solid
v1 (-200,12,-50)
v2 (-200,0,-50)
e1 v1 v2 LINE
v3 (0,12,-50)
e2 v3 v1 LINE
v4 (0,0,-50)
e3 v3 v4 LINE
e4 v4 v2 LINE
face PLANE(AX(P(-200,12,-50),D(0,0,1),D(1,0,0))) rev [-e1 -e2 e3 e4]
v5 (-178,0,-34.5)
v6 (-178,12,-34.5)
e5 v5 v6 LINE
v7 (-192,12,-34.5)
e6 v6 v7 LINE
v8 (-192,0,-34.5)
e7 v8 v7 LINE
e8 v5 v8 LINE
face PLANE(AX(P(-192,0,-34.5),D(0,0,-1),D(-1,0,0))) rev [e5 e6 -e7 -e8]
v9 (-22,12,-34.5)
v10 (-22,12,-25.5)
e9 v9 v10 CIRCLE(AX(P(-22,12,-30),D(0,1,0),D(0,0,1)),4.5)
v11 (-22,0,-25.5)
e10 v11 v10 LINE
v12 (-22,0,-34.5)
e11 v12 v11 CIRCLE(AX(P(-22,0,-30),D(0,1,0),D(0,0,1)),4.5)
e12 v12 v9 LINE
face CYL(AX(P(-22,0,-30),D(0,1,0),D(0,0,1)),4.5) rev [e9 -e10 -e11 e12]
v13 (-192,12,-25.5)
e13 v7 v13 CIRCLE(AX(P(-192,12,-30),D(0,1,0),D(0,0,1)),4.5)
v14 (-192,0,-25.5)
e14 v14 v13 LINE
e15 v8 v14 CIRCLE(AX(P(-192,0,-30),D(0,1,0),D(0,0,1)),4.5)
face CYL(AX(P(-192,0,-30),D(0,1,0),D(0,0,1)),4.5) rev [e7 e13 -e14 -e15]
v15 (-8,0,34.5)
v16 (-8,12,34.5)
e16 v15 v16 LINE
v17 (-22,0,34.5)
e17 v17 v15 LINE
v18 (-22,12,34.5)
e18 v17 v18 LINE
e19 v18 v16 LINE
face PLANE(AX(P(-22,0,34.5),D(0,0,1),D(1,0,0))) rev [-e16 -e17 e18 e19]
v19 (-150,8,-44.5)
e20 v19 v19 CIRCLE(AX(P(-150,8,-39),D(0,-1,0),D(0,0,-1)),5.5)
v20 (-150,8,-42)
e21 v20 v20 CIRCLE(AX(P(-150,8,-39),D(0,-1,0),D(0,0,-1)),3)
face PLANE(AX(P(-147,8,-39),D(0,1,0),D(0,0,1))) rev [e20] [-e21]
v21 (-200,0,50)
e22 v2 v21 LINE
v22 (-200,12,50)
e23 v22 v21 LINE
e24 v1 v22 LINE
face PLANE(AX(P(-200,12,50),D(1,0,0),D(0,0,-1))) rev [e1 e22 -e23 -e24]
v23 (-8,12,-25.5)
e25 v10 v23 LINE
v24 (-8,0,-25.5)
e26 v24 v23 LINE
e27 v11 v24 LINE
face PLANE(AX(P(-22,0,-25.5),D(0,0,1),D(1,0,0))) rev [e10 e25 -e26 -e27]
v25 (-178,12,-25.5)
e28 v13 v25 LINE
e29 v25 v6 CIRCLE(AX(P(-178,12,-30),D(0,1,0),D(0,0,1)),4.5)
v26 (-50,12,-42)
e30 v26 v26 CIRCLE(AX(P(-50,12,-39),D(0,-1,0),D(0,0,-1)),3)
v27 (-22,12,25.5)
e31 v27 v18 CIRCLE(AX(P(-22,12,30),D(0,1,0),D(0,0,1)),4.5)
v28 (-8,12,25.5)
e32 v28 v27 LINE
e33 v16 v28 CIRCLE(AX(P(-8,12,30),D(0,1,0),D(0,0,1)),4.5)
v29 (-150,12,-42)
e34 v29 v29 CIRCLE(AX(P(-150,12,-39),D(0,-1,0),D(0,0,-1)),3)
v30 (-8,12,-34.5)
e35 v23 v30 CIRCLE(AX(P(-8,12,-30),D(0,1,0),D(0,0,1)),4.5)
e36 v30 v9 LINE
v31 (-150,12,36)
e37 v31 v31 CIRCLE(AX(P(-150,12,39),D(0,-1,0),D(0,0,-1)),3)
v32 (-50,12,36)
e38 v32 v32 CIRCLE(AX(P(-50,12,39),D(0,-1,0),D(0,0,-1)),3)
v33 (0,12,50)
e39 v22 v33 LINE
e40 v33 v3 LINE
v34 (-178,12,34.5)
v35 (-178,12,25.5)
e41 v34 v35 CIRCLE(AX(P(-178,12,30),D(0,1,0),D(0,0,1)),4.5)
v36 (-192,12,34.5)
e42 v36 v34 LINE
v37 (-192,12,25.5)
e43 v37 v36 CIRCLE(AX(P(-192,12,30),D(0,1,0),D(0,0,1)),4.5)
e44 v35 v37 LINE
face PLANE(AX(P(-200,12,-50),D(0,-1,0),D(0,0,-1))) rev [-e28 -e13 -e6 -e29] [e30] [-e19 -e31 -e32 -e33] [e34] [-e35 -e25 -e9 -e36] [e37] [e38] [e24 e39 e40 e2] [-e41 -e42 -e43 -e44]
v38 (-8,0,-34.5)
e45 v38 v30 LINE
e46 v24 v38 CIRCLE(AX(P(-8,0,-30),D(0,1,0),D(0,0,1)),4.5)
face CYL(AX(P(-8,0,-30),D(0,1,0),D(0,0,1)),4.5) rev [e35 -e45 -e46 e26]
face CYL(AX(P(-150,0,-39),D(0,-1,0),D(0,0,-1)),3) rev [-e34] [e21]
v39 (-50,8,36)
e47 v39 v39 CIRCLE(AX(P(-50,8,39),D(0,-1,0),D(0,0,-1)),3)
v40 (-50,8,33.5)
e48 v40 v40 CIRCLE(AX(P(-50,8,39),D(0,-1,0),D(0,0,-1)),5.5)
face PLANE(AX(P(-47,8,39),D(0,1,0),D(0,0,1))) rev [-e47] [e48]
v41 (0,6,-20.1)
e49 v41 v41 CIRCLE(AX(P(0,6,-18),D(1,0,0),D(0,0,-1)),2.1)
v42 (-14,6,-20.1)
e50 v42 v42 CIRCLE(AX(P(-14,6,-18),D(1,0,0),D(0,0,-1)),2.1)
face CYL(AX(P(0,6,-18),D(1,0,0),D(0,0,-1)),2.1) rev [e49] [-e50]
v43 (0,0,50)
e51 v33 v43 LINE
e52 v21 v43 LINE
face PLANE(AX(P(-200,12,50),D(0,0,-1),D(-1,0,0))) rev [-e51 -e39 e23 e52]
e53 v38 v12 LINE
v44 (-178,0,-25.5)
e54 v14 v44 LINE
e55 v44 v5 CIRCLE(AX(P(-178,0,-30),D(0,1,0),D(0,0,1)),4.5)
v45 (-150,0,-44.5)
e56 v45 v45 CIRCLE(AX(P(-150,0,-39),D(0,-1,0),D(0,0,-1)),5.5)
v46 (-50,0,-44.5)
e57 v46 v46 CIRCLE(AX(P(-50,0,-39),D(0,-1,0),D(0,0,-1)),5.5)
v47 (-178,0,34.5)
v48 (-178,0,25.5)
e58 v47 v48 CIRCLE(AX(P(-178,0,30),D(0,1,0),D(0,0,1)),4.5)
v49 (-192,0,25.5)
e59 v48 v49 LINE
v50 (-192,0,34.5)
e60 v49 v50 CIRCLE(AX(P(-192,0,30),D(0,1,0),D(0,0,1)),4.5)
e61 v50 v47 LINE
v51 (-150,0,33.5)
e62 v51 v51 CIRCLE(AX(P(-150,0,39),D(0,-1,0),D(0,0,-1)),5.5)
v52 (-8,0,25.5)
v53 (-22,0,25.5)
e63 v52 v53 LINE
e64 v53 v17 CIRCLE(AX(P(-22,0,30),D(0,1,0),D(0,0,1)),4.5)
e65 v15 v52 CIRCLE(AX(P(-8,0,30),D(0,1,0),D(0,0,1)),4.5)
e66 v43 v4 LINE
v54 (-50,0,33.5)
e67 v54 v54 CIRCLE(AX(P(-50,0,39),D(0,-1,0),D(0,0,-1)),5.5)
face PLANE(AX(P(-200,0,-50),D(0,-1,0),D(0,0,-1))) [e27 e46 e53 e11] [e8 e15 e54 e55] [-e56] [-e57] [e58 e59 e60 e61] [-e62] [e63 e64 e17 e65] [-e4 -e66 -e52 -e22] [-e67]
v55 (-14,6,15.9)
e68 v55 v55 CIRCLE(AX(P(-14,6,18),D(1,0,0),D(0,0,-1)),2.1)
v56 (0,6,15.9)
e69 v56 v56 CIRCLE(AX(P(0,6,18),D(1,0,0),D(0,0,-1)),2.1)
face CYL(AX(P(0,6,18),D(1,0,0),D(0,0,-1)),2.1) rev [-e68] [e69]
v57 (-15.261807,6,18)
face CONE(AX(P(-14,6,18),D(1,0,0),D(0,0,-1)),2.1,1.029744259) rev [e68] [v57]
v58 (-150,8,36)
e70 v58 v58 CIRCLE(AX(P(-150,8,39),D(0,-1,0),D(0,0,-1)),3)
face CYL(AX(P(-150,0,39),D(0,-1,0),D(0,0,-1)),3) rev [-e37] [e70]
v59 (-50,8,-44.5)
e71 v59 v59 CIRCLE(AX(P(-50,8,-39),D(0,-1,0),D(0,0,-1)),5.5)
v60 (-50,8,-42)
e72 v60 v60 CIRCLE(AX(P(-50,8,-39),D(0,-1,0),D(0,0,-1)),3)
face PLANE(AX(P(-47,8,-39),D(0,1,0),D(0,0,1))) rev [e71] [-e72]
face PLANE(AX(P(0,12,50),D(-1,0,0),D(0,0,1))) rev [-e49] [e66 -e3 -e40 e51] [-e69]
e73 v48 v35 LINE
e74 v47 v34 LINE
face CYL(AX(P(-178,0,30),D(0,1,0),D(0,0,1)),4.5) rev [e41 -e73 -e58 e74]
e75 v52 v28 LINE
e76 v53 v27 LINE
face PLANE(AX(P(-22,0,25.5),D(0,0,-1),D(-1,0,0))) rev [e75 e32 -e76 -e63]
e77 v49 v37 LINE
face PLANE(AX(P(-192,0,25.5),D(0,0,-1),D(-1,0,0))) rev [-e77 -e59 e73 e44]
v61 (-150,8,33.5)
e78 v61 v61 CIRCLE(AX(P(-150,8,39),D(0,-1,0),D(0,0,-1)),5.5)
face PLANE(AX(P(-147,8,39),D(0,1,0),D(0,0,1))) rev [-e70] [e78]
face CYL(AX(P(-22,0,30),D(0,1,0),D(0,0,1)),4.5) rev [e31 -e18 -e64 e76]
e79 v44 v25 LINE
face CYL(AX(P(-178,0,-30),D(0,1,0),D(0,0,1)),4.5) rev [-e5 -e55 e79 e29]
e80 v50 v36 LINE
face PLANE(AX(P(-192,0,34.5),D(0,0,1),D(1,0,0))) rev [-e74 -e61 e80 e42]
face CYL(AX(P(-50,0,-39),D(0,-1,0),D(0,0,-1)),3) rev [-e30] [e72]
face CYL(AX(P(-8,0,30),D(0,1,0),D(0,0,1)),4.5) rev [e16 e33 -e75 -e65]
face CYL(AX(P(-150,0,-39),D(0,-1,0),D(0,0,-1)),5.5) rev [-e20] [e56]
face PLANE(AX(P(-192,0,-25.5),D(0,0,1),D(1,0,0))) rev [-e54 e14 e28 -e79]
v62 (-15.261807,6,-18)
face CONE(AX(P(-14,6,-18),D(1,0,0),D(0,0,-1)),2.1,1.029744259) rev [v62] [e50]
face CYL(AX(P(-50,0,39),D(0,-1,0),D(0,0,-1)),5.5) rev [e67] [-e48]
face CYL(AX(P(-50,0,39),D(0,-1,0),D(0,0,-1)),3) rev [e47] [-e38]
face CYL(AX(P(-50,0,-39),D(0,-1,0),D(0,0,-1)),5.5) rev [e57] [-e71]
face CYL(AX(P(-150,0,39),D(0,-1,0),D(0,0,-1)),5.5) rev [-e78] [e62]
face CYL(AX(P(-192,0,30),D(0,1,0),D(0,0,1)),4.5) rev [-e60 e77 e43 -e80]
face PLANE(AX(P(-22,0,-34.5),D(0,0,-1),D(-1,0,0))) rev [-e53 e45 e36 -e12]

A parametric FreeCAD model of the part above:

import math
import FreeCAD as App
import Part
import Sketcher

V = App.Vector

doc = App.newDocument("Part")
body = doc.addObject("PartDesign::Body", "Body")

sketch1 = doc.addObject("Sketcher::SketchObject", "Sketch")
body.addObject(sketch1)
sketch1.AttachmentSupport = (doc.XZ_Plane, [""])
sketch1.MapMode = "FlatFace"
sketch1.addGeometry([
    Part.LineSegment(V(-200, -50, 0), V(-200, 50, 0)),
    Part.LineSegment(V(-200, 50, 0), V(0, 50, 0)),
    Part.LineSegment(V(0, 50, 0), V(0, -50, 0)),
    Part.LineSegment(V(0, -50, 0), V(-200, -50, 0)),
], False)
sketch1.addConstraint([
    Sketcher.Constraint("Coincident", 0, 2, 1, 1),
    Sketcher.Constraint("Coincident", 1, 2, 2, 1),
    Sketcher.Constraint("Coincident", 2, 2, 3, 1),
    Sketcher.Constraint("Coincident", 3, 2, 0, 1),
    Sketcher.Constraint("Vertical", 0),
    Sketcher.Constraint("Horizontal", 1),
    Sketcher.Constraint("Vertical", 2),
    Sketcher.Constraint("Horizontal", 3),
    Sketcher.Constraint("Symmetric", 1, 2, 2, 2, -1, 1),
    Sketcher.Constraint("DistanceX", 1, 1, 1, 2, 200.0),
    Sketcher.Constraint("DistanceY", 0, 1, 0, 2, 100.0),
])
pad1 = doc.addObject("PartDesign::Pad", "Pad")
body.addObject(pad1)
pad1.Profile = sketch1
pad1.Length = 12
pad1.Reversed = True

sketch2 = doc.addObject("Sketcher::SketchObject", "Sketch001")
body.addObject(sketch2)
sketch2.AttachmentSupport = (doc.XZ_Plane, [""])
sketch2.MapMode = "FlatFace"
sketch2.AttachmentOffset = App.Placement(V(0, 0, -12), App.Rotation())
sketch2.addGeometry([
    Part.LineSegment(V(-178, 25.5, 0), V(-192, 25.5, 0)),
    Part.ArcOfCircle(Part.Circle(V(-192, 30, 0), V(0, 0, 1), 4.5), math.radians(90), math.radians(270)),
    Part.LineSegment(V(-192, 34.5, 0), V(-178, 34.5, 0)),
    Part.ArcOfCircle(Part.Circle(V(-178, 30, 0), V(0, 0, 1), 4.5), math.radians(-90), math.radians(90)),
    Part.LineSegment(V(-178, -34.5, 0), V(-192, -34.5, 0)),
    Part.ArcOfCircle(Part.Circle(V(-192, -30, 0), V(0, 0, 1), 4.5), math.radians(90), math.radians(270)),
    Part.LineSegment(V(-192, -25.5, 0), V(-178, -25.5, 0)),
    Part.ArcOfCircle(Part.Circle(V(-178, -30, 0), V(0, 0, 1), 4.5), math.radians(-90), math.radians(90)),
    Part.LineSegment(V(-8, -34.5, 0), V(-22, -34.5, 0)),
    Part.ArcOfCircle(Part.Circle(V(-22, -30, 0), V(0, 0, 1), 4.5), math.radians(90), math.radians(270)),
    Part.LineSegment(V(-22, -25.5, 0), V(-8, -25.5, 0)),
    Part.ArcOfCircle(Part.Circle(V(-8, -30, 0), V(0, 0, 1), 4.5), math.radians(-90), math.radians(90)),
    Part.LineSegment(V(-8, 25.5, 0), V(-22, 25.5, 0)),
    Part.ArcOfCircle(Part.Circle(V(-22, 30, 0), V(0, 0, 1), 4.5), math.radians(90), math.radians(270)),
    Part.LineSegment(V(-22, 34.5, 0), V(-8, 34.5, 0)),
    Part.ArcOfCircle(Part.Circle(V(-8, 30, 0), V(0, 0, 1), 4.5), math.radians(-90), math.radians(90)),
], False)
sketch2.addConstraint([
    Sketcher.Constraint("Tangent", 0, 2, 1, 2),
    Sketcher.Constraint("Tangent", 1, 1, 2, 1),
    Sketcher.Constraint("Tangent", 2, 2, 3, 2),
    Sketcher.Constraint("Tangent", 3, 1, 0, 1),
    Sketcher.Constraint("Tangent", 4, 2, 5, 2),
    Sketcher.Constraint("Tangent", 5, 1, 6, 1),
    Sketcher.Constraint("Tangent", 6, 2, 7, 2),
    Sketcher.Constraint("Tangent", 7, 1, 4, 1),
    Sketcher.Constraint("Tangent", 8, 2, 9, 2),
    Sketcher.Constraint("Tangent", 9, 1, 10, 1),
    Sketcher.Constraint("Tangent", 10, 2, 11, 2),
    Sketcher.Constraint("Tangent", 11, 1, 8, 1),
    Sketcher.Constraint("Tangent", 12, 2, 13, 2),
    Sketcher.Constraint("Tangent", 13, 1, 14, 1),
    Sketcher.Constraint("Tangent", 14, 2, 15, 2),
    Sketcher.Constraint("Tangent", 15, 1, 12, 1),
    Sketcher.Constraint("Horizontal", 0),
    Sketcher.Constraint("Horizontal", 2),
    Sketcher.Constraint("Horizontal", 4),
    Sketcher.Constraint("Horizontal", 6),
    Sketcher.Constraint("Horizontal", 8),
    Sketcher.Constraint("Horizontal", 10),
    Sketcher.Constraint("Horizontal", 12),
    Sketcher.Constraint("Horizontal", 14),
    Sketcher.Constraint("Equal", 3, 5),
    Sketcher.Constraint("Equal", 7, 9),
    Sketcher.Constraint("Equal", 11, 13),
    Sketcher.Constraint("Symmetric", 1, 3, 5, 3, -1),
    Sketcher.Constraint("Symmetric", 9, 3, 13, 3, -1),
    Sketcher.Constraint("Horizontal", 7, 3, 9, 3),
    Sketcher.Constraint("Vertical", 3, 3, 7, 3),
    Sketcher.Constraint("Vertical", 11, 3, 15, 3),
    Sketcher.Constraint("Equal", 6, 8),
    Sketcher.Constraint("Radius", 1, 4.5),
    Sketcher.Constraint("DistanceX", 0, 2, 0, 1, 14.0),
    Sketcher.Constraint("DistanceX", 1, 3, -1, 1, 192.0),
    Sketcher.Constraint("DistanceY", -1, 1, 1, 3, 30.0),
    Sketcher.Constraint("DistanceX", 9, 3, -1, 1, 22.0),
])
pocket1 = doc.addObject("PartDesign::Pocket", "Pocket")
body.addObject(pocket1)
pocket1.Profile = sketch2
pocket1.Type = "ThroughAll"
pocket1.Reversed = True

sketch3 = doc.addObject("Sketcher::SketchObject", "Sketch002")
body.addObject(sketch3)
sketch3.AttachmentSupport = (doc.XZ_Plane, [""])
sketch3.MapMode = "FlatFace"
sketch3.addGeometry([
    Part.Circle(V(-150, 39, 0), V(0, 0, 1), 3),
    Part.Circle(V(-50, 39, 0), V(0, 0, 1), 3),
    Part.Circle(V(-150, -39, 0), V(0, 0, 1), 3),
    Part.Circle(V(-50, -39, 0), V(0, 0, 1), 3),
], False)
sketch3.addConstraint([
    Sketcher.Constraint("Equal", 0, 1),
    Sketcher.Constraint("Equal", 1, 2),
    Sketcher.Constraint("Equal", 2, 3),
    Sketcher.Constraint("Symmetric", 0, 3, 2, 3, -1),
    Sketcher.Constraint("Symmetric", 1, 3, 3, 3, -1),
    Sketcher.Constraint("Horizontal", 0, 3, 1, 3),
    Sketcher.Constraint("Diameter", 0, 6.0),
    Sketcher.Constraint("DistanceX", 0, 3, -1, 1, 150.0),
    Sketcher.Constraint("DistanceY", -1, 1, 0, 3, 39.0),
    Sketcher.Constraint("DistanceX", 1, 3, -1, 1, 50.0),
])
doc.recompute()
hole = doc.addObject("PartDesign::Hole", "Hole")
body.addObject(hole)
hole.Profile = sketch3
hole.ThreadType = "None"
hole.Diameter = 6
hole.DepthType = "ThroughAll"
hole.HoleCutType = "Counterbore"
hole.HoleCutDiameter = 11
hole.HoleCutDepth = 8

sketch4 = doc.addObject("Sketcher::SketchObject", "Sketch003")
body.addObject(sketch4)
sketch4.AttachmentSupport = (doc.YZ_Plane, [""])
sketch4.MapMode = "FlatFace"
sketch4.addGeometry([
    Part.Circle(V(6, -18, 0), V(0, 0, 1), 2.1),
    Part.Circle(V(6, 18, 0), V(0, 0, 1), 2.1),
], False)
sketch4.addConstraint([
    Sketcher.Constraint("Equal", 0, 1),
    Sketcher.Constraint("Symmetric", 0, 3, 1, 3, -1),
    Sketcher.Constraint("Diameter", 0, 4.2),
    Sketcher.Constraint("DistanceX", -1, 1, 0, 3, 6.0),
    Sketcher.Constraint("DistanceY", 0, 3, -1, 1, 18.0),
])
doc.recompute()
hole2 = doc.addObject("PartDesign::Hole", "Hole001")
body.addObject(hole2)
hole2.Profile = sketch4
hole2.ThreadType = "None"
hole2.Diameter = 4.2
hole2.DepthType = "Dimension"
hole2.Depth = 14
hole2.DrillPoint = "Angled"
hole2.DrillPointAngle = 118

doc.recompute()
